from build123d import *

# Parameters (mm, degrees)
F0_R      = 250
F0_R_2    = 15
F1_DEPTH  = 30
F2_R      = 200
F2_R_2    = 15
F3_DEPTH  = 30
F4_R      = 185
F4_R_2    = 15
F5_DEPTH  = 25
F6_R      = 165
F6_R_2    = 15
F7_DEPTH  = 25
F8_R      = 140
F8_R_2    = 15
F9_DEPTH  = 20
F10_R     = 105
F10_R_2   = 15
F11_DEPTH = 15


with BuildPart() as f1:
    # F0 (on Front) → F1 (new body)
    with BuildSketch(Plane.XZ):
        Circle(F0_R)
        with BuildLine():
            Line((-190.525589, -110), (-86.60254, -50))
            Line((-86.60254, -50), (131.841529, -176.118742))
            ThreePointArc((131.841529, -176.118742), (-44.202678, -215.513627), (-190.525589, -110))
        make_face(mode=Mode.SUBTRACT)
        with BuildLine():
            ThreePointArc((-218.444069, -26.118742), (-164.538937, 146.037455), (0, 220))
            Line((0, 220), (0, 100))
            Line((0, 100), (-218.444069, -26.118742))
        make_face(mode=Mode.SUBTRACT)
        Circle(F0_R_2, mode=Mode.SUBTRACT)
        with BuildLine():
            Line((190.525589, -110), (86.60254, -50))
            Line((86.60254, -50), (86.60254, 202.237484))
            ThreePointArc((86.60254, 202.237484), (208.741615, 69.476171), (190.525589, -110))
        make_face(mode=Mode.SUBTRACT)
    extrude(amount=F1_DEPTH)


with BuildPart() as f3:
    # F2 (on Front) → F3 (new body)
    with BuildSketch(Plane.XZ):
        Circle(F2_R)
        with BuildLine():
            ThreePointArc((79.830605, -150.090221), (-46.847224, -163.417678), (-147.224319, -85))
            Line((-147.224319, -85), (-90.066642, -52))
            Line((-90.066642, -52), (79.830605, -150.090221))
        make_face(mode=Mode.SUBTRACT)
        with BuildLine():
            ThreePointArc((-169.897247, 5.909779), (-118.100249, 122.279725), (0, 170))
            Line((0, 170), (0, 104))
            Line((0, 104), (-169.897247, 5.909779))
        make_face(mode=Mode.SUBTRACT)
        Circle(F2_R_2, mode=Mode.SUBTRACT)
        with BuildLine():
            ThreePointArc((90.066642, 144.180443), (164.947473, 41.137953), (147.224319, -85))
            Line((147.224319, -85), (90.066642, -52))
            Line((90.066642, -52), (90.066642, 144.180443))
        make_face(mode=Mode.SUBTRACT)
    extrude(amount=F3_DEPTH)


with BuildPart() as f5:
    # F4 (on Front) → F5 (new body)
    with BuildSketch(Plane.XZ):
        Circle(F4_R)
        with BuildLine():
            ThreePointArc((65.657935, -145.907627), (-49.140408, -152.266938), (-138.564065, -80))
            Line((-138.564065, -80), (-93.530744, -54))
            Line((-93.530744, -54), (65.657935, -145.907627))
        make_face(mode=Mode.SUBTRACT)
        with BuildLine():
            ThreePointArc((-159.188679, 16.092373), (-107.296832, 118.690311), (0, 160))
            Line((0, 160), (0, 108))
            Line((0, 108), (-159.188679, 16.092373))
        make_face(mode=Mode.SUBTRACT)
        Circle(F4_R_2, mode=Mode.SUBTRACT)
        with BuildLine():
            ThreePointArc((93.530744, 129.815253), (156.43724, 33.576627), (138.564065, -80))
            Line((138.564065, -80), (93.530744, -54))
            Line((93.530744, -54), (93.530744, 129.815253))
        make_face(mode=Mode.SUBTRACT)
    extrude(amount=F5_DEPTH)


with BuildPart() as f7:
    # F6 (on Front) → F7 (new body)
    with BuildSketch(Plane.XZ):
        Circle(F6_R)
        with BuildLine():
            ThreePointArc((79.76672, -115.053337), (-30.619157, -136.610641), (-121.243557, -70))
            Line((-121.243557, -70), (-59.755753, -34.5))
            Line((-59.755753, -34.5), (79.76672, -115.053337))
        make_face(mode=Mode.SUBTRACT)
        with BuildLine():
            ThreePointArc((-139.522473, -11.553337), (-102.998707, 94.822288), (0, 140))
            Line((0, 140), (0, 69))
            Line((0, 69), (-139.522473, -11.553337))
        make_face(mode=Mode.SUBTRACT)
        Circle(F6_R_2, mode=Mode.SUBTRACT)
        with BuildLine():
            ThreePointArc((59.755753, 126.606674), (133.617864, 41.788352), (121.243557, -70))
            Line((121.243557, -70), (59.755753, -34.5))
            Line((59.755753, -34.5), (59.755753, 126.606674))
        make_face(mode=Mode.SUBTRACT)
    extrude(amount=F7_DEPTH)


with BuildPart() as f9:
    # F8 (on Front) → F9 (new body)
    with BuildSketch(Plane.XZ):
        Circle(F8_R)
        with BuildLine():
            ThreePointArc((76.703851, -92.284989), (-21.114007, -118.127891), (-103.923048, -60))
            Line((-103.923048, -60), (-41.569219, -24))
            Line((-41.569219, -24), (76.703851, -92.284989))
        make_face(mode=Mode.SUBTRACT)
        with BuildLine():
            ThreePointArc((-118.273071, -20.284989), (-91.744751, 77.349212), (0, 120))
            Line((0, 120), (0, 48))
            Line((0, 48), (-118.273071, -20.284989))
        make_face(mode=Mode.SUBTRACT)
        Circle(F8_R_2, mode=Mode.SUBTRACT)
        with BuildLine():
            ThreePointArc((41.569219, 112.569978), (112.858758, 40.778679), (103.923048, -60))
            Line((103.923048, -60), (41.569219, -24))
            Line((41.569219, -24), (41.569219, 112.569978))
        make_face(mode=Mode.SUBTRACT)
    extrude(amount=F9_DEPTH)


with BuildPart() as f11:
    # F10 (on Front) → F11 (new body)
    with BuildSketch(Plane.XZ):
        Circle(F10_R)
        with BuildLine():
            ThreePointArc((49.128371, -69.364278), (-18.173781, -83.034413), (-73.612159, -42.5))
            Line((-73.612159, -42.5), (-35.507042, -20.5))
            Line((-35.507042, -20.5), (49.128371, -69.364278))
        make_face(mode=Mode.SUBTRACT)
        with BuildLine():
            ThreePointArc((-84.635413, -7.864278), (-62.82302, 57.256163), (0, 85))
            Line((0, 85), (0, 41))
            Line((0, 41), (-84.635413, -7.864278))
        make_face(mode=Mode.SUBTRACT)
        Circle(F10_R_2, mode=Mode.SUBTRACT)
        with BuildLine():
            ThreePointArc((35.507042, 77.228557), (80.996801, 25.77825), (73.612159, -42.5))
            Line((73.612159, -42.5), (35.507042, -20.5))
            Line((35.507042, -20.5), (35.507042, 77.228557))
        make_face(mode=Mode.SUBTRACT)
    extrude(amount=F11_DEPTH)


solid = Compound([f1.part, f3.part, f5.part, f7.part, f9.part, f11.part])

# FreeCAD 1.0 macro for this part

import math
import FreeCAD as App
import Part
import Sketcher
Q = App.Units.Quantity

doc = App.newDocument("Part")
params = doc.addObject("Spreadsheet::Sheet", "Params")
for row, (alias, value) in enumerate([
    ("sketch1_diameter", "500 mm"),
    ("sketch1_diameter2", "30 mm"),
    ("sketch1_radius", "220 mm"),
    ("sketch1_height", "120 mm"),
    ("sketch1_length", "120 mm"),
    ("pad1_length", "30 mm"),
    ("sketch2_diameter", "400 mm"),
    ("sketch2_diameter2", "30 mm"),
    ("sketch2_radius", "170.000001 mm"),
    ("sketch2_height", "66 mm"),
    ("sketch2_length", "66 mm"),
    ("pad2_length", "30 mm"),
    ("sketch3_diameter", "370 mm"),
    ("sketch3_diameter2", "30 mm"),
    ("sketch3_radius", "160 mm"),
    ("sketch3_height", "52 mm"),
    ("sketch3_length", "52 mm"),
    ("pad3_length", "25 mm"),
    ("sketch4_diameter", "330 mm"),
    ("sketch4_diameter2", "30 mm"),
    ("sketch4_radius", "140 mm"),
    ("sketch4_height", "71 mm"),
    ("sketch4_length", "71 mm"),
    ("pad4_length", "25 mm"),
    ("sketch5_diameter", "280 mm"),
    ("sketch5_diameter2", "30 mm"),
    ("sketch5_radius", "120 mm"),
    ("sketch5_height", "72 mm"),
    ("sketch5_length", "72 mm"),
    ("pad5_length", "20 mm"),
    ("sketch6_diameter", "210 mm"),
    ("sketch6_diameter2", "30 mm"),
    ("sketch6_radius", "84.999999 mm"),
    ("sketch6_height", "44 mm"),
    ("sketch6_length", "43.999999 mm"),
    ("pad6_length", "15 mm"),
], start=1):
    params.set(f"A{row}", alias)
    params.set(f"B{row}", "=" + value)
    params.setAlias(f"B{row}", alias)

body = doc.addObject("PartDesign::Body", "Body")

sketch1 = body.newObject("Sketcher::SketchObject", "Sketch")
sketch1.AttachmentSupport = (doc.getObject("XZ_Plane"), [""])
sketch1.MapMode = "FlatFace"
sketch1.addGeometry([
    Part.Circle(App.Vector(0, 0, 0), App.Vector(0, 0, 1), 250),
    Part.ArcOfCircle(Part.Circle(App.Vector(0, 0, 0), App.Vector(0, 0, 1), 220), math.radians(-150), math.radians(-53)),
    Part.LineSegment(App.Vector(-191, -110, 0), App.Vector(-87, -50, 0)),
    Part.LineSegment(App.Vector(-87, -50, 0), App.Vector(132, -176, 0)),
    Part.LineSegment(App.Vector(0, 100, 0), App.Vector(-218, -26, 0)),
    Part.ArcOfCircle(Part.Circle(App.Vector(0, 0, 0), App.Vector(0, 0, 1), 220), math.radians(90), math.radians(187)),
    Part.LineSegment(App.Vector(0, 220, 0), App.Vector(0, 100, 0)),
    Part.Circle(App.Vector(0, 0, 0), App.Vector(0, 0, 1), 15),
    Part.ArcOfCircle(Part.Circle(App.Vector(0, 0, 0), App.Vector(0, 0, 1), 220), math.radians(-30), math.radians(67)),
    Part.LineSegment(App.Vector(191, -110, 0), App.Vector(87, -50, 0)),
    Part.LineSegment(App.Vector(87, -50, 0), App.Vector(87, 202, 0)),
], False)
sketch1.addConstraint([
    Sketcher.Constraint("Coincident", 1, 1, 2, 1),
    Sketcher.Constraint("Coincident", 2, 2, 3, 1),
    Sketcher.Constraint("Coincident", 3, 2, 1, 2),
    Sketcher.Constraint("Coincident", 4, 2, 5, 2),
    Sketcher.Constraint("Coincident", 5, 1, 6, 1),
    Sketcher.Constraint("Coincident", 6, 2, 4, 1),
    Sketcher.Constraint("Coincident", 8, 1, 9, 1),
    Sketcher.Constraint("Coincident", 9, 2, 10, 1),
    Sketcher.Constraint("Coincident", 10, 2, 8, 2),
    Sketcher.Constraint("Vertical", 6),
    Sketcher.Constraint("Vertical", 10),
    Sketcher.Constraint("Coincident", 0, 3, -1, 1),
    Sketcher.Constraint("Coincident", 1, 3, -1, 1),
    Sketcher.Constraint("Coincident", 5, 3, -1, 1),
    Sketcher.Constraint("Coincident", 7, 3, -1, 1),
    Sketcher.Constraint("Coincident", 8, 3, -1, 1),
    Sketcher.Constraint("Equal", 1, 5),
    Sketcher.Constraint("Equal", 5, 8),
    Sketcher.Constraint("Symmetric", 2, 2, 9, 2, -2),
    Sketcher.Constraint("PointOnObject", 5, 1, -2),
    Sketcher.Constraint("Parallel", 2, 4),
    Sketcher.Constraint("Parallel", 3, 9),
    Sketcher.Constraint("Horizontal", 1, 1, 8, 1),
    Sketcher.Constraint("Equal", 3, 4),
    Sketcher.Constraint("Diameter", 0, Q("500 mm")),
    Sketcher.Constraint("Diameter", 7, Q("30 mm")),
    Sketcher.Constraint("Radius", 1, Q("220 mm")),
    Sketcher.Constraint("DistanceY", 6, 2, 6, 1, Q("120 mm")),
    Sketcher.Constraint("Angle", 2, Q("30 deg")),
    Sketcher.Constraint("Distance", 2, Q("120 mm")),
])
sketch1.setExpression("Constraints[24]", "Params.sketch1_diameter")
sketch1.setExpression("Constraints[25]", "Params.sketch1_diameter2")
sketch1.setExpression("Constraints[26]", "Params.sketch1_radius")
sketch1.setExpression("Constraints[27]", "Params.sketch1_height")
sketch1.setExpression("Constraints[29]", "Params.sketch1_length")
pad1 = body.newObject("PartDesign::Pad", "Pad")
pad1.Profile = sketch1
pad1.setExpression("Length", "Params.pad1_length")
body2 = doc.addObject("PartDesign::Body", "Body001")

sketch2 = body2.newObject("Sketcher::SketchObject", "Sketch001")
sketch2.AttachmentSupport = (doc.getObject("XZ_Plane001"), [""])
sketch2.MapMode = "FlatFace"
sketch2.addGeometry([
    Part.Circle(App.Vector(0, 0, 0), App.Vector(0, 0, 1), 200),
    Part.LineSegment(App.Vector(-90, -52, 0), App.Vector(80, -150, 0)),
    Part.ArcOfCircle(Part.Circle(App.Vector(0, 0, 0), App.Vector(0, 0, 1), 170), math.radians(-150), math.radians(-62)),
    Part.LineSegment(App.Vector(-147, -85, 0), App.Vector(-90, -52, 0)),
    Part.Circle(App.Vector(0, 0, 0), App.Vector(0, 0, 1), 15),
    Part.LineSegment(App.Vector(0, 104, 0), App.Vector(-170, 6, 0)),
    Part.ArcOfCircle(Part.Circle(App.Vector(0, 0, 0), App.Vector(0, 0, 1), 170), math.radians(90), math.radians(178)),
    Part.LineSegment(App.Vector(0, 170, 0), App.Vector(0, 104, 0)),
    Part.LineSegment(App.Vector(90, -52, 0), App.Vector(90, 144, 0)),
    Part.ArcOfCircle(Part.Circle(App.Vector(0, 0, 0), App.Vector(0, 0, 1), 170), math.radians(-30), math.radians(58)),
    Part.LineSegment(App.Vector(147, -85, 0), App.Vector(90, -52, 0)),
], False)
sketch2.addConstraint([
    Sketcher.Constraint("Coincident", 1, 2, 2, 2),
    Sketcher.Constraint("Coincident", 2, 1, 3, 1),
    Sketcher.Constraint("Coincident", 3, 2, 1, 1),
    Sketcher.Constraint("Coincident", 5, 2, 6, 2),
    Sketcher.Constraint("Coincident", 6, 1, 7, 1),
    Sketcher.Constraint("Coincident", 7, 2, 5, 1),
    Sketcher.Constraint("Coincident", 8, 2, 9, 2),
    Sketcher.Constraint("Coincident", 9, 1, 10, 1),
    Sketcher.Constraint("Coincident", 10, 2, 8, 1),
    Sketcher.Constraint("Vertical", 7),
    Sketcher.Constraint("Vertical", 8),
    Sketcher.Constraint("Coincident", 0, 3, -1, 1),
    Sketcher.Constraint("Coincident", 2, 3, -1, 1),
    Sketcher.Constraint("Coincident", 4, 3, -1, 1),
    Sketcher.Constraint("Coincident", 6, 3, -1, 1),
    Sketcher.Constraint("Coincident", 9, 3, -1, 1),
    Sketcher.Constraint("Equal", 2, 6),
    Sketcher.Constraint("Equal", 6, 9),
    Sketcher.Constraint("Symmetric", 3, 2, 10, 2, -2),
    Sketcher.Constraint("PointOnObject", 6, 1, -2),
    Sketcher.Constraint("Parallel", 3, 5),
    Sketcher.Constraint("Parallel", 1, 10),
    Sketcher.Constraint("Equal", 1, 5),
    Sketcher.Constraint("Diameter", 0, Q("400 mm")),
    Sketcher.Constraint("Diameter", 4, Q("30 mm")),
    Sketcher.Constraint("Radius", 2, Q("170.000001 mm")),
    Sketcher.Constraint("DistanceY", 7, 2, 7, 1, Q("66 mm")),
    Sketcher.Constraint("Angle", 1, Q("-30 deg")),
    Sketcher.Constraint("Angle", 3, Q("30 deg")),
    Sketcher.Constraint("Distance", 3, Q("66 mm")),
])
sketch2.setExpression("Constraints[23]", "Params.sketch2_diameter")
sketch2.setExpression("Constraints[24]", "Params.sketch2_diameter2")
sketch2.setExpression("Constraints[25]", "Params.sketch2_radius")
sketch2.setExpression("Constraints[26]", "Params.sketch2_height")
sketch2.setExpression("Constraints[29]", "Params.sketch2_length")
pad2 = body2.newObject("PartDesign::Pad", "Pad001")
pad2.Profile = sketch2
pad2.setExpression("Length", "Params.pad2_length")
body3 = doc.addObject("PartDesign::Body", "Body002")

sketch3 = body3.newObject("Sketcher::SketchObject", "Sketch002")
sketch3.AttachmentSupport = (doc.getObject("XZ_Plane002"), [""])
sketch3.MapMode = "FlatFace"
sketch3.addGeometry([
    Part.Circle(App.Vector(0, 0, 0), App.Vector(0, 0, 1), 185),
    Part.LineSegment(App.Vector(-94, -54, 0), App.Vector(66, -146, 0)),
    Part.ArcOfCircle(Part.Circle(App.Vector(0, 0, 0), App.Vector(0, 0, 1), 160), math.radians(-150), math.radians(-66)),
    Part.LineSegment(App.Vector(-139, -80, 0), App.Vector(-94, -54, 0)),
    Part.Circle(App.Vector(0, 0, 0), App.Vector(0, 0, 1), 15),
    Part.LineSegment(App.Vector(0, 108, 0), App.Vector(-159, 16, 0)),
    Part.ArcOfCircle(Part.Circle(App.Vector(0, 0, 0), App.Vector(0, 0, 1), 160), math.radians(90), math.radians(174)),
    Part.LineSegment(App.Vector(0, 160, 0), App.Vector(0, 108, 0)),
    Part.LineSegment(App.Vector(94, -54, 0), App.Vector(94, 130, 0)),
    Part.ArcOfCircle(Part.Circle(App.Vector(0, 0, 0), App.Vector(0, 0, 1), 160), math.radians(-30), math.radians(54)),
    Part.LineSegment(App.Vector(139, -80, 0), App.Vector(94, -54, 0)),
], False)
sketch3.addConstraint([
    Sketcher.Constraint("Coincident", 1, 2, 2, 2),
    Sketcher.Constraint("Coincident", 2, 1, 3, 1),
    Sketcher.Constraint("Coincident", 3, 2, 1, 1),
    Sketcher.Constraint("Coincident", 5, 2, 6, 2),
    Sketcher.Constraint("Coincident", 6, 1, 7, 1),
    Sketcher.Constraint("Coincident", 7, 2, 5, 1),
    Sketcher.Constraint("Coincident", 8, 2, 9, 2),
    Sketcher.Constraint("Coincident", 9, 1, 10, 1),
    Sketcher.Constraint("Coincident", 10, 2, 8, 1),
    Sketcher.Constraint("Vertical", 7),
    Sketcher.Constraint("Vertical", 8),
    Sketcher.Constraint("Coincident", 0, 3, -1, 1),
    Sketcher.Constraint("Coincident", 2, 3, -1, 1),
    Sketcher.Constraint("Coincident", 4, 3, -1, 1),
    Sketcher.Constraint("Coincident", 6, 3, -1, 1),
    Sketcher.Constraint("Coincident", 9, 3, -1, 1),
    Sketcher.Constraint("Equal", 2, 6),
    Sketcher.Constraint("Equal", 6, 9),
    Sketcher.Constraint("Symmetric", 3, 2, 10, 2, -2),
    Sketcher.Constraint("PointOnObject", 6, 1, -2),
    Sketcher.Constraint("Parallel", 3, 5),
    Sketcher.Constraint("Parallel", 1, 10),
    Sketcher.Constraint("Equal", 1, 5),
    Sketcher.Constraint("Diameter", 0, Q("370 mm")),
    Sketcher.Constraint("Diameter", 4, Q("30 mm")),
    Sketcher.Constraint("Radius", 2, Q("160 mm")),
    Sketcher.Constraint("DistanceY", 7, 2, 7, 1, Q("52 mm")),
    Sketcher.Constraint("Angle", 1, Q("-30 deg")),
    Sketcher.Constraint("Angle", 3, Q("30 deg")),
    Sketcher.Constraint("Distance", 3, Q("52 mm")),
])
sketch3.setExpression("Constraints[23]", "Params.sketch3_diameter")
sketch3.setExpression("Constraints[24]", "Params.sketch3_diameter2")
sketch3.setExpression("Constraints[25]", "Params.sketch3_radius")
sketch3.setExpression("Constraints[26]", "Params.sketch3_height")
sketch3.setExpression("Constraints[29]", "Params.sketch3_length")
pad3 = body3.newObject("PartDesign::Pad", "Pad002")
pad3.Profile = sketch3
pad3.setExpression("Length", "Params.pad3_length")
body4 = doc.addObject("PartDesign::Body", "Body003")

sketch4 = body4.newObject("Sketcher::SketchObject", "Sketch003")
sketch4.AttachmentSupport = (doc.getObject("XZ_Plane003"), [""])
sketch4.MapMode = "FlatFace"
sketch4.addGeometry([
    Part.Circle(App.Vector(0, 0, 0), App.Vector(0, 0, 1), 165),
    Part.LineSegment(App.Vector(-60, -34, 0), App.Vector(80, -115, 0)),
    Part.ArcOfCircle(Part.Circle(App.Vector(0, 0, 0), App.Vector(0, 0, 1), 140), math.radians(-150), math.radians(-55)),
    Part.LineSegment(App.Vector(-121, -70, 0), App.Vector(-60, -34, 0)),
    Part.Circle(App.Vector(0, 0, 0), App.Vector(0, 0, 1), 15),
    Part.LineSegment(App.Vector(0, 69, 0), App.Vector(-140, -12, 0)),
    Part.ArcOfCircle(Part.Circle(App.Vector(0, 0, 0), App.Vector(0, 0, 1), 140), math.radians(90), math.radians(185)),
    Part.LineSegment(App.Vector(0, 140, 0), App.Vector(0, 69, 0)),
    Part.LineSegment(App.Vector(60, -34, 0), App.Vector(60, 127, 0)),
    Part.ArcOfCircle(Part.Circle(App.Vector(0, 0, 0), App.Vector(0, 0, 1), 140), math.radians(-30), math.radians(65)),
    Part.LineSegment(App.Vector(121, -70, 0), App.Vector(60, -34, 0)),
], False)
sketch4.addConstraint([
    Sketcher.Constraint("Coincident", 1, 2, 2, 2),
    Sketcher.Constraint("Coincident", 2, 1, 3, 1),
    Sketcher.Constraint("Coincident", 3, 2, 1, 1),
    Sketcher.Constraint("Coincident", 5, 2, 6, 2),
    Sketcher.Constraint("Coincident", 6, 1, 7, 1),
    Sketcher.Constraint("Coincident", 7, 2, 5, 1),
    Sketcher.Constraint("Coincident", 8, 2, 9, 2),
    Sketcher.Constraint("Coincident", 9, 1, 10, 1),
    Sketcher.Constraint("Coincident", 10, 2, 8, 1),
    Sketcher.Constraint("Vertical", 7),
    Sketcher.Constraint("Vertical", 8),
    Sketcher.Constraint("Coincident", 0, 3, -1, 1),
    Sketcher.Constraint("Coincident", 2, 3, -1, 1),
    Sketcher.Constraint("Coincident", 4, 3, -1, 1),
    Sketcher.Constraint("Coincident", 6, 3, -1, 1),
    Sketcher.Constraint("Coincident", 9, 3, -1, 1),
    Sketcher.Constraint("Equal", 2, 6),
    Sketcher.Constraint("Equal", 6, 9),
    Sketcher.Constraint("Symmetric", 3, 2, 10, 2, -2),
    Sketcher.Constraint("PointOnObject", 6, 1, -2),
    Sketcher.Constraint("Parallel", 3, 5),
    Sketcher.Constraint("Parallel", 1, 10),
    Sketcher.Constraint("Horizontal", 2, 1, 9, 1),
    Sketcher.Constraint("Equal", 1, 5),
    Sketcher.Constraint("Diameter", 0, Q("330 mm")),
    Sketcher.Constraint("Diameter", 4, Q("30 mm")),
    Sketcher.Constraint("Radius", 2, Q("140 mm")),
    Sketcher.Constraint("DistanceY", 7, 2, 7, 1, Q("71 mm")),
    Sketcher.Constraint("Angle", 1, Q("-30 deg")),
    Sketcher.Constraint("Distance", 3, Q("71 mm")),
])
sketch4.setExpression("Constraints[24]", "Params.sketch4_diameter")
sketch4.setExpression("Constraints[25]", "Params.sketch4_diameter2")
sketch4.setExpression("Constraints[26]", "Params.sketch4_radius")
sketch4.setExpression("Constraints[27]", "Params.sketch4_height")
sketch4.setExpression("Constraints[29]", "Params.sketch4_length")
pad4 = body4.newObject("PartDesign::Pad", "Pad003")
pad4.Profile = sketch4
pad4.setExpression("Length", "Params.pad4_length")
body5 = doc.addObject("PartDesign::Body", "Body004")

sketch5 = body5.newObject("Sketcher::SketchObject", "Sketch004")
sketch5.AttachmentSupport = (doc.getObject("XZ_Plane004"), [""])
sketch5.MapMode = "FlatFace"
sketch5.addGeometry([
    Part.Circle(App.Vector(0, 0, 0), App.Vector(0, 0, 1), 140),
    Part.LineSegment(App.Vector(-42, -24, 0), App.Vector(77, -92, 0)),
    Part.ArcOfCircle(Part.Circle(App.Vector(0, 0, 0), App.Vector(0, 0, 1), 120), math.radians(-150), math.radians(-50)),
    Part.LineSegment(App.Vector(-104, -60, 0), App.Vector(-42, -24, 0)),
    Part.Circle(App.Vector(0, 0, 0), App.Vector(0, 0, 1), 15),
    Part.LineSegment(App.Vector(0, 48, 0), App.Vector(-118, -20, 0)),
    Part.ArcOfCircle(Part.Circle(App.Vector(0, 0, 0), App.Vector(0, 0, 1), 120), math.radians(90), math.radians(190)),
    Part.LineSegment(App.Vector(0, 120, 0), App.Vector(0, 48, 0)),
    Part.LineSegment(App.Vector(42, -24, 0), App.Vector(42, 113, 0)),
    Part.ArcOfCircle(Part.Circle(App.Vector(0, 0, 0), App.Vector(0, 0, 1), 120), math.radians(-30), math.radians(70)),
    Part.LineSegment(App.Vector(104, -60, 0), App.Vector(42, -24, 0)),
], False)
sketch5.addConstraint([
    Sketcher.Constraint("Coincident", 1, 2, 2, 2),
    Sketcher.Constraint("Coincident", 2, 1, 3, 1),
    Sketcher.Constraint("Coincident", 3, 2, 1, 1),
    Sketcher.Constraint("Coincident", 5, 2, 6, 2),
    Sketcher.Constraint("Coincident", 6, 1, 7, 1),
    Sketcher.Constraint("Coincident", 7, 2, 5, 1),
    Sketcher.Constraint("Coincident", 8, 2, 9, 2),
    Sketcher.Constraint("Coincident", 9, 1, 10, 1),
    Sketcher.Constraint("Coincident", 10, 2, 8, 1),
    Sketcher.Constraint("Vertical", 7),
    Sketcher.Constraint("Vertical", 8),
    Sketcher.Constraint("Coincident", 0, 3, -1, 1),
    Sketcher.Constraint("Coincident", 2, 3, -1, 1),
    Sketcher.Constraint("Coincident", 4, 3, -1, 1),
    Sketcher.Constraint("Coincident", 6, 3, -1, 1),
    Sketcher.Constraint("Coincident", 9, 3, -1, 1),
    Sketcher.Constraint("Equal", 2, 6),
    Sketcher.Constraint("Equal", 6, 9),
    Sketcher.Constraint("Symmetric", 3, 2, 10, 2, -2),
    Sketcher.Constraint("PointOnObject", 6, 1, -2),
    Sketcher.Constraint("Parallel", 3, 5),
    Sketcher.Constraint("Parallel", 1, 10),
    Sketcher.Constraint("Horizontal", 2, 1, 9, 1),
    Sketcher.Constraint("Equal", 1, 5),
    Sketcher.Constraint("Diameter", 0, Q("280 mm")),
    Sketcher.Constraint("Diameter", 4, Q("30 mm")),
    Sketcher.Constraint("Radius", 2, Q("120 mm")),
    Sketcher.Constraint("DistanceY", 7, 2, 7, 1, Q("72 mm")),
    Sketcher.Constraint("Angle", 1, Q("-30 deg")),
    Sketcher.Constraint("Distance", 3, Q("72 mm")),
])
sketch5.setExpression("Constraints[24]", "Params.sketch5_diameter")
sketch5.setExpression("Constraints[25]", "Params.sketch5_diameter2")
sketch5.setExpression("Constraints[26]", "Params.sketch5_radius")
sketch5.setExpression("Constraints[27]", "Params.sketch5_height")
sketch5.setExpression("Constraints[29]", "Params.sketch5_length")
pad5 = body5.newObject("PartDesign::Pad", "Pad004")
pad5.Profile = sketch5
pad5.setExpression("Length", "Params.pad5_length")
body6 = doc.addObject("PartDesign::Body", "Body005")

sketch6 = body6.newObject("Sketcher::SketchObject", "Sketch005")
sketch6.AttachmentSupport = (doc.getObject("XZ_Plane005"), [""])
sketch6.MapMode = "FlatFace"
sketch6.addGeometry([
    Part.Circle(App.Vector(0, 0, 0), App.Vector(0, 0, 1), 105),
    Part.LineSegment(App.Vector(-36, -20, 0), App.Vector(49, -69, 0)),
    Part.ArcOfCircle(Part.Circle(App.Vector(0, 0, 0), App.Vector(0, 0, 1), 85), math.radians(-150), math.radians(-55)),
    Part.LineSegment(App.Vector(-74, -42, 0), App.Vector(-36, -20, 0)),
    Part.LineSegment(App.Vector(0, 41, 0), App.Vector(-85, -8, 0)),
    Part.ArcOfCircle(Part.Circle(App.Vector(0, 0, 0), App.Vector(0, 0, 1), 85), math.radians(90), math.radians(185)),
    Part.LineSegment(App.Vector(0, 85, 0), App.Vector(0, 41, 0)),
    Part.Circle(App.Vector(0, 0, 0), App.Vector(0, 0, 1), 15),
    Part.LineSegment(App.Vector(36, -20, 0), App.Vector(36, 77, 0)),
    Part.ArcOfCircle(Part.Circle(App.Vector(0, 0, 0), App.Vector(0, 0, 1), 85), math.radians(-30), math.radians(65)),
    Part.LineSegment(App.Vector(74, -42, 0), App.Vector(36, -20, 0)),
], False)
sketch6.addConstraint([
    Sketcher.Constraint("Coincident", 1, 2, 2, 2),
    Sketcher.Constraint("Coincident", 2, 1, 3, 1),
    Sketcher.Constraint("Coincident", 3, 2, 1, 1),
    Sketcher.Constraint("Coincident", 4, 2, 5, 2),
    Sketcher.Constraint("Coincident", 5, 1, 6, 1),
    Sketcher.Constraint("Coincident", 6, 2, 4, 1),
    Sketcher.Constraint("Coincident", 8, 2, 9, 2),
    Sketcher.Constraint("Coincident", 9, 1, 10, 1),
    Sketcher.Constraint("Coincident", 10, 2, 8, 1),
    Sketcher.Constraint("Vertical", 6),
    Sketcher.Constraint("Vertical", 8),
    Sketcher.Constraint("Coincident", 0, 3, -1, 1),
    Sketcher.Constraint("Coincident", 2, 3, -1, 1),
    Sketcher.Constraint("Coincident", 5, 3, -1, 1),
    Sketcher.Constraint("Coincident", 7, 3, -1, 1),
    Sketcher.Constraint("Coincident", 9, 3, -1, 1),
    Sketcher.Constraint("Equal", 2, 5),
    Sketcher.Constraint("Equal", 5, 9),
    Sketcher.Constraint("Symmetric", 3, 2, 10, 2, -2),
    Sketcher.Constraint("PointOnObject", 5, 1, -2),
    Sketcher.Constraint("Parallel", 3, 4),
    Sketcher.Constraint("Parallel", 1, 10),
    Sketcher.Constraint("Horizontal", 2, 1, 9, 1),
    Sketcher.Constraint("Equal", 1, 4),
    Sketcher.Constraint("Diameter", 0, Q("210 mm")),
    Sketcher.Constraint("Diameter", 7, Q("30 mm")),
    Sketcher.Constraint("Radius", 5, Q("84.999999 mm")),
    Sketcher.Constraint("DistanceY", 6, 2, 6, 1, Q("44 mm")),
    Sketcher.Constraint("Angle", 1, Q("-30 deg")),
    Sketcher.Constraint("Distance", 3, Q("43.999999 mm")),
])
sketch6.setExpression("Constraints[24]", "Params.sketch6_diameter")
sketch6.setExpression("Constraints[25]", "Params.sketch6_diameter2")
sketch6.setExpression("Constraints[26]", "Params.sketch6_radius")
sketch6.setExpression("Constraints[27]", "Params.sketch6_height")
sketch6.setExpression("Constraints[29]", "Params.sketch6_length")
pad6 = body6.newObject("PartDesign::Pad", "Pad005")
pad6.Profile = sketch6
pad6.setExpression("Length", "Params.pad6_length")

doc.recompute()
